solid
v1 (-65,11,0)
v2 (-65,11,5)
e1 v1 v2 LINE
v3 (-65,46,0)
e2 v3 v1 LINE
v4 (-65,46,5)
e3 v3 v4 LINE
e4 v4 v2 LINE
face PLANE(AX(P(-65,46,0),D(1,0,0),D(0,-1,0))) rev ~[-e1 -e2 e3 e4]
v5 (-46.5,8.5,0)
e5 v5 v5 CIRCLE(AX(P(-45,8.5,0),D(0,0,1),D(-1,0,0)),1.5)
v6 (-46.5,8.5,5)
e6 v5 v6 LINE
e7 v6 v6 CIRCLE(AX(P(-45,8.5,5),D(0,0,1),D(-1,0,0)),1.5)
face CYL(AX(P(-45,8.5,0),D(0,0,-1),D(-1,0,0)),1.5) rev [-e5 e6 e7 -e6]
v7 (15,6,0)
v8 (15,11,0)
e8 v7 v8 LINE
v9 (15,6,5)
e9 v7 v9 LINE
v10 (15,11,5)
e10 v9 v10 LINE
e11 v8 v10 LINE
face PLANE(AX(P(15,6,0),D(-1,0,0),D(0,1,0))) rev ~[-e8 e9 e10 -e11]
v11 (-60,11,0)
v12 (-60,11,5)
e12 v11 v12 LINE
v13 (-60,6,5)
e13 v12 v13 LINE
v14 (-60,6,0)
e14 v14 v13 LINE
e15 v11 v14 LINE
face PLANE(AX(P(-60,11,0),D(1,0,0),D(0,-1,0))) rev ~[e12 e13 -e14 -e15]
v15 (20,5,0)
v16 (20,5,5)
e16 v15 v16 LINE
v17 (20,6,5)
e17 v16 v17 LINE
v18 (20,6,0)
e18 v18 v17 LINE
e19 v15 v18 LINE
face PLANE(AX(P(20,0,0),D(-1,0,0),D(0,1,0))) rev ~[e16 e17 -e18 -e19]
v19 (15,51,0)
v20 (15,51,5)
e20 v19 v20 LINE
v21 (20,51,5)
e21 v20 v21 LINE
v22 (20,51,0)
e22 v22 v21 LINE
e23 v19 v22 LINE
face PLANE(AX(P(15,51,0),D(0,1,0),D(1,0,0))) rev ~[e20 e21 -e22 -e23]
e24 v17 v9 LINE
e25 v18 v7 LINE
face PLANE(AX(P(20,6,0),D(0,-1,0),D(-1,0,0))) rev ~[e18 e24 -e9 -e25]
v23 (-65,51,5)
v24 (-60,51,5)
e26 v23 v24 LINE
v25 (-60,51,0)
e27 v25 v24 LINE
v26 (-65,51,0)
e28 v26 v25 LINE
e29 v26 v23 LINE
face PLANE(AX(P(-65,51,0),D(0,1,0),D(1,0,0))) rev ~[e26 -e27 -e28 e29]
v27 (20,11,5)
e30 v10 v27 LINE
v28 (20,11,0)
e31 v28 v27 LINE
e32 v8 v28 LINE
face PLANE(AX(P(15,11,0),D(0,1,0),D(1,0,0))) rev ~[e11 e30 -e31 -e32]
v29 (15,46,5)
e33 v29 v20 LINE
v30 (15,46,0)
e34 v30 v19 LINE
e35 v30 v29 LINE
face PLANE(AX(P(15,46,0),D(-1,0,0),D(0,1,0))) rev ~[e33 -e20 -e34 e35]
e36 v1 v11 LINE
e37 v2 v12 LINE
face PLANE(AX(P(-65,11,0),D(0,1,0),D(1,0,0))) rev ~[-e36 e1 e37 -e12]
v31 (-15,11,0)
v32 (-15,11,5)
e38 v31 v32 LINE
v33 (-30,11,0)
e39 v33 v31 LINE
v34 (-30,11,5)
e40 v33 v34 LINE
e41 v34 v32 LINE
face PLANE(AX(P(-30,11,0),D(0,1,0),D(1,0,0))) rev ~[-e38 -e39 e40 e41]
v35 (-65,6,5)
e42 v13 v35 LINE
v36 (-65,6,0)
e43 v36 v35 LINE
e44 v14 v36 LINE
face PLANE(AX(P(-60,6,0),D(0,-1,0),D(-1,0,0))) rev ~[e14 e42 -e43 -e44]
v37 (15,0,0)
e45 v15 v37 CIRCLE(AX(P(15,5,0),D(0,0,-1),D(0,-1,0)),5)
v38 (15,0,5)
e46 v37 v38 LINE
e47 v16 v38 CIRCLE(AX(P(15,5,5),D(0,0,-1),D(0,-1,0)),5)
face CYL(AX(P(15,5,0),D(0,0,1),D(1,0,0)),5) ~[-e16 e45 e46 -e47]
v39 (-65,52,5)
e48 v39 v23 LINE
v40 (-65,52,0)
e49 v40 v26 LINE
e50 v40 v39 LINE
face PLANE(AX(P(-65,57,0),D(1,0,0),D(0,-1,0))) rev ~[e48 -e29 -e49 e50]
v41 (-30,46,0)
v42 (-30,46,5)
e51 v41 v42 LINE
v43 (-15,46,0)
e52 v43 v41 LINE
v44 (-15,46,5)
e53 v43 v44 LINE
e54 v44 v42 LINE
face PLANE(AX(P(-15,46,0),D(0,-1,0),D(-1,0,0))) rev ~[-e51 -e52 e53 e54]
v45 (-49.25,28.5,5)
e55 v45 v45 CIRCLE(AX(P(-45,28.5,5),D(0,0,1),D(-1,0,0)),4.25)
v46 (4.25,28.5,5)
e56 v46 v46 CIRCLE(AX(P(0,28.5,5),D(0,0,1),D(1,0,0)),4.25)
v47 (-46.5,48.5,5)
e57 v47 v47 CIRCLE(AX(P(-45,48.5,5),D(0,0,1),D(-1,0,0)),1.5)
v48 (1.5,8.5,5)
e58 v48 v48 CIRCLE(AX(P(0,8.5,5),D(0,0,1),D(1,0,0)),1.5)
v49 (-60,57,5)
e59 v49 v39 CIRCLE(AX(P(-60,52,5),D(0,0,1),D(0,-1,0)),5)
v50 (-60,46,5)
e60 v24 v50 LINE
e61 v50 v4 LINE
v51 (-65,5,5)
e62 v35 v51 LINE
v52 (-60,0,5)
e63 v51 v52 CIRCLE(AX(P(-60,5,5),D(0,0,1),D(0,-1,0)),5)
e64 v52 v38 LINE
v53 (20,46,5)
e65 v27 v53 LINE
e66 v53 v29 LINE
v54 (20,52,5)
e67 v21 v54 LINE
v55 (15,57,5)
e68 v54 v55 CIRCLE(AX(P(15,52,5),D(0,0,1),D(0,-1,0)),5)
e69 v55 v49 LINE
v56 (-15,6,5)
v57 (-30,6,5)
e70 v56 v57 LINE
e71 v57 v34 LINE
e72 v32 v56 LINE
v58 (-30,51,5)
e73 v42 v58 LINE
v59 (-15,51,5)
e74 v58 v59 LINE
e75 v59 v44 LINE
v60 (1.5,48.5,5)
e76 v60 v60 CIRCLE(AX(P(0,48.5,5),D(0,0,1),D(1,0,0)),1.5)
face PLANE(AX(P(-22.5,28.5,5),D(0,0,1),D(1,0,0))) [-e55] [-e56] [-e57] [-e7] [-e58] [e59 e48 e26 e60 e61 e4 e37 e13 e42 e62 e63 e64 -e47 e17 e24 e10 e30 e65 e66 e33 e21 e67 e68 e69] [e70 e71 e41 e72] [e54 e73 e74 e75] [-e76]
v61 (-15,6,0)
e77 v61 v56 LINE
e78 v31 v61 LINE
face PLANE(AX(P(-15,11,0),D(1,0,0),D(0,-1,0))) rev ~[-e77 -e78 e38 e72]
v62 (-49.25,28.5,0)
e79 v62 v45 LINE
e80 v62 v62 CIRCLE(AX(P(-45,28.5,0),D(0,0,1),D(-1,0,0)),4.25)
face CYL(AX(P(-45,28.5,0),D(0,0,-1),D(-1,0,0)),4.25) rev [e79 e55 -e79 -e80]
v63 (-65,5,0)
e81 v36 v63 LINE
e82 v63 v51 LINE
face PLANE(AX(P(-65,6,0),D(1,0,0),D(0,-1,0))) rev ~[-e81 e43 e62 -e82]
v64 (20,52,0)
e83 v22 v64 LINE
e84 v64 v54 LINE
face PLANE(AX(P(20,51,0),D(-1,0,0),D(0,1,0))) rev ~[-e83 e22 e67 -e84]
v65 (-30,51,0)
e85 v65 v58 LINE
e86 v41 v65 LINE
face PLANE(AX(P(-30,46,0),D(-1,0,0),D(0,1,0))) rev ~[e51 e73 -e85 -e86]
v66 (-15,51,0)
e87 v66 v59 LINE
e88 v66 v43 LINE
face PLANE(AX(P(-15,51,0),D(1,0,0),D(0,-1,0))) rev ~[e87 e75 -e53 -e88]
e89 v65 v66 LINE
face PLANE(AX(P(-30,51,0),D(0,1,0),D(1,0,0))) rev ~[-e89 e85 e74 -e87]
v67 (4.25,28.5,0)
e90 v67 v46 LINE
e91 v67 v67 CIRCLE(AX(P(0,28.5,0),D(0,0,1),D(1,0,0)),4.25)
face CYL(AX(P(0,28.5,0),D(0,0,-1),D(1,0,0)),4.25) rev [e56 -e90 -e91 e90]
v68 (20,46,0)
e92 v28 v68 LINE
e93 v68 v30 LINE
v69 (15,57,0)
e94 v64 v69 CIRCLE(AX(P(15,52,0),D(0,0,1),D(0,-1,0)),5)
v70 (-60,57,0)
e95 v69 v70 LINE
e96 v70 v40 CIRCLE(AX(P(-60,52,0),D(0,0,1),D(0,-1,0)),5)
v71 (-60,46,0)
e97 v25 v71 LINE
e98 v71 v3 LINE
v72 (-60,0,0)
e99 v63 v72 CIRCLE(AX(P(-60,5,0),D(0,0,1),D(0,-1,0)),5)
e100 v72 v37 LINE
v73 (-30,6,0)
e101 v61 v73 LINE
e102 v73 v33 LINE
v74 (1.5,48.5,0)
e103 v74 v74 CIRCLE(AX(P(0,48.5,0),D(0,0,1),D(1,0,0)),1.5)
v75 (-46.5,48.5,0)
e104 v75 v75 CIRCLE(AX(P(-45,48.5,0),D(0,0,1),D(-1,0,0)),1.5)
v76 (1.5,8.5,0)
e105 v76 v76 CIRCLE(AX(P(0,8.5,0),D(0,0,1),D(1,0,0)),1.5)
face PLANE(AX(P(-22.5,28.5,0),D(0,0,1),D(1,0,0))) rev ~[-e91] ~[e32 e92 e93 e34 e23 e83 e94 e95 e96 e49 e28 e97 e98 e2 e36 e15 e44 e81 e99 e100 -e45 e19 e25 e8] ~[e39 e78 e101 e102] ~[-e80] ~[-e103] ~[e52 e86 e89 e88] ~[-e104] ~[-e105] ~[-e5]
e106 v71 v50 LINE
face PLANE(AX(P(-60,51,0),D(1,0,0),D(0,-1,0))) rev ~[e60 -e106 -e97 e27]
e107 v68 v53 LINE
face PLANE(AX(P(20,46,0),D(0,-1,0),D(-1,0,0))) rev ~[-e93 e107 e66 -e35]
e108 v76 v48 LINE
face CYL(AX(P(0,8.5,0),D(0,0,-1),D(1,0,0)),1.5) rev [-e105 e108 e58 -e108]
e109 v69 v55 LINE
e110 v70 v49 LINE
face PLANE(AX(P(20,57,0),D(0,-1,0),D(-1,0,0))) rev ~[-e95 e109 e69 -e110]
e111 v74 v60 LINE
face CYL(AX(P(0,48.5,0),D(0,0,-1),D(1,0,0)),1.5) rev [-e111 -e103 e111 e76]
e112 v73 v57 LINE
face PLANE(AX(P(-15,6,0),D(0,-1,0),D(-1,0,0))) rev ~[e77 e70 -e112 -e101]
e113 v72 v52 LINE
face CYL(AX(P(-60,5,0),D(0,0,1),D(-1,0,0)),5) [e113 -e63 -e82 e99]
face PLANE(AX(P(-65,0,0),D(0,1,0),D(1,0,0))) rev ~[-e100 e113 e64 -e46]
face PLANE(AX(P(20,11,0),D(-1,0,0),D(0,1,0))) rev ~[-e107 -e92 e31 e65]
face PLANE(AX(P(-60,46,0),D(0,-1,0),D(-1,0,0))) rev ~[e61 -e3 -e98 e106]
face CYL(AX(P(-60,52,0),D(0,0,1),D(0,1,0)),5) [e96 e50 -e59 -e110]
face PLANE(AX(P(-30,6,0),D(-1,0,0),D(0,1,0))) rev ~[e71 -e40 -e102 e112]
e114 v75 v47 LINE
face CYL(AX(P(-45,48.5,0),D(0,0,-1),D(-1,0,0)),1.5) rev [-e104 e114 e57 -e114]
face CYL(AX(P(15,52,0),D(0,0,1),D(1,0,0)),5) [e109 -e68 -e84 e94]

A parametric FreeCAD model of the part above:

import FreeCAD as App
import Part
import Sketcher
from FreeCAD import Vector
Q = App.Units.Quantity


def edges_at(feature, points):
    """Names of the edges that pass closest to the given points."""
    edges = feature.Shape.Edges
    near = lambda p: min(range(len(edges)), key=lambda i: edges[i].distToShape(Part.Vertex(*p))[0])
    return sorted({f"Edge{near(p) + 1}" for p in points})


def add_polygon(sketch, points):
    """Adds a closed chain of lines whose ends are joined by coincident constraints."""
    first, n = sketch.GeometryCount, len(points)
    for a, b in zip(points, points[1:] + points[:1]):
        sketch.addGeometry(Part.LineSegment(App.Vector(*a, 0), App.Vector(*b, 0)), False)
    for i in range(n):
        sketch.addConstraint(Sketcher.Constraint("Coincident", first + i, 2, first + (i + 1) % n, 1))

doc = App.newDocument("Part")
body = doc.addObject("PartDesign::Body", "Body")

sketch1 = body.newObject("Sketcher::SketchObject", "Sketch")
sketch1.AttachmentSupport = (doc.getObject("XY_Plane"), [""])
sketch1.MapMode = "FlatFace"
add_polygon(sketch1, [(20, 0), (20, 6), (15, 6), (15, 11), (20, 11), (20, 46), (15, 46), (15, 51), (20, 51), (20, 57), (-65, 57), (-65, 51), (-60, 51), (-60, 46), (-65, 46), (-65, 11), (-60, 11), (-60, 6), (-65, 6), (-65, 0)])
sketch1.addGeometry(Part.Circle(Vector(-45, 8.5, 0), Vector(0, 0, 1), 1.5), False)
add_polygon(sketch1, [(-30, 11), (-15, 11), (-15, 6), (-30, 6)])
sketch1.addGeometry(Part.Circle(Vector(0, 8.5, 0), Vector(0, 0, 1), 1.5), False)
sketch1.addGeometry(Part.Circle(Vector(-45, 28.5, 0), Vector(0, 0, 1), 4.2), False)
sketch1.addGeometry(Part.Circle(Vector(-45, 48.5, 0), Vector(0, 0, 1), 1.5), False)
add_polygon(sketch1, [(-30, 51), (-15, 51), (-15, 46), (-30, 46)])
sketch1.addGeometry(Part.Circle(Vector(0, 28.5, 0), Vector(0, 0, 1), 4.2), False)
sketch1.addGeometry(Part.Circle(Vector(0, 48.5, 0), Vector(0, 0, 1), 1.5), False)
sketch1.addConstraint([
    Sketcher.Constraint("Vertical", 0),
    Sketcher.Constraint("Horizontal", 1),
    Sketcher.Constraint("Vertical", 2),
    Sketcher.Constraint("Horizontal", 3),
    Sketcher.Constraint("Vertical", 4),
    Sketcher.Constraint("Horizontal", 5),
    Sketcher.Constraint("Vertical", 6),
    Sketcher.Constraint("Horizontal", 7),
    Sketcher.Constraint("Vertical", 8),
    Sketcher.Constraint("Horizontal", 9),
    Sketcher.Constraint("Vertical", 10),
    Sketcher.Constraint("Horizontal", 11),
    Sketcher.Constraint("Vertical", 12),
    Sketcher.Constraint("Horizontal", 13),
    Sketcher.Constraint("Vertical", 14),
    Sketcher.Constraint("Horizontal", 15),
    Sketcher.Constraint("Vertical", 16),
    Sketcher.Constraint("Horizontal", 17),
    Sketcher.Constraint("Vertical", 18),
    Sketcher.Constraint("Horizontal", 19),
    Sketcher.Constraint("Horizontal", 21),
    Sketcher.Constraint("Vertical", 22),
    Sketcher.Constraint("Horizontal", 23),
    Sketcher.Constraint("Vertical", 24),
    Sketcher.Constraint("Horizontal", 28),
    Sketcher.Constraint("Vertical", 29),
    Sketcher.Constraint("Horizontal", 30),
    Sketcher.Constraint("Vertical", 31),
    Sketcher.Constraint("Equal", 20, 25),
    Sketcher.Constraint("Equal", 25, 27),
    Sketcher.Constraint("Equal", 26, 32),
    Sketcher.Constraint("Equal", 27, 33),
    Sketcher.Constraint("Symmetric", 2, 2, 21, 2, -2),
    Sketcher.Constraint("Symmetric", 6, 2, 28, 2, -2),
    Sketcher.Constraint("PointOnObject", 25, 3, -2),
    Sketcher.Constraint("PointOnObject", 32, 3, -2),
    Sketcher.Constraint("PointOnObject", 33, 3, -2),
    Sketcher.Constraint("PointOnObject", 18, 2, -1),
    Sketcher.Constraint("Horizontal", 20, 3, 25, 3),
    Sketcher.Constraint("Horizontal", 26, 3, 32, 3),
    Sketcher.Constraint("Horizontal", 27, 3, 33, 3),
    Sketcher.Constraint("Horizontal", 7, 2, 10, 2),
    Sketcher.Constraint("Horizontal", 5, 2, 12, 2),
    Sketcher.Constraint("Horizontal", 3, 2, 14, 2),
    Sketcher.Constraint("Horizontal", 1, 2, 16, 2),
    Sketcher.Constraint("Horizontal", 17, 2, 22, 2),
    Sketcher.Constraint("Horizontal", 13, 2, 29, 2),
    Sketcher.Constraint("Vertical", 20, 3, 26, 3),
    Sketcher.Constraint("Vertical", 26, 3, 27, 3),
    Sketcher.Constraint("Vertical", 0, 2, 3, 2),
    Sketcher.Constraint("Vertical", 2, 2, 5, 2),
    Sketcher.Constraint("Vertical", 4, 2, 7, 2),
    Sketcher.Constraint("Vertical", 10, 2, 13, 2),
    Sketcher.Constraint("Vertical", 12, 2, 15, 2),
    Sketcher.Constraint("Vertical", 14, 2, 17, 2),
    Sketcher.Constraint("Vertical", 24, 2, 30, 2),
    Sketcher.Constraint("Equal", 7, 11),
    Sketcher.Constraint("Equal", 17, 2),
    Sketcher.Constraint("Equal", 2, 6),
    Sketcher.Constraint("Equal", 0, 8),
    Sketcher.Constraint("Diameter", 20, Q("3 mm")),
    Sketcher.Constraint("Diameter", 26, Q("8.5 mm")),
    Sketcher.Constraint("DistanceX", 1, 2, 1, 1, Q("5 mm")),
    Sketcher.Constraint("DistanceX", 9, 2, 9, 1, Q("85 mm")),
    Sketcher.Constraint("DistanceX", 21, 1, 21, 2, Q("15 mm")),
    Sketcher.Constraint("DistanceY", 0, 1, 0, 2, Q("6 mm")),
    Sketcher.Constraint("DistanceY", 4, 1, 4, 2, Q("35 mm")),
    Sketcher.Constraint("DistanceX", 20, 3, -1, 1, Q("45 mm")),
    Sketcher.Constraint("DistanceX", -1, 1, 0, 2, Q("20 mm")),
    Sketcher.Constraint("DistanceY", 20, 3, 26, 3, Q("20 mm")),
    Sketcher.Constraint("DistanceY", 26, 3, 27, 3, Q("20 mm")),
    Sketcher.Constraint("DistanceY", -1, 1, 20, 3, Q("8.5 mm")),
])
pad1 = body.newObject("PartDesign::Pad", "Pad")
pad1.Profile = sketch1
pad1.Length = 5
doc.recompute()

fillet = body.newObject("PartDesign::Fillet", "Fillet")
fillet.Base = (pad1, edges_at(pad1, [
    (-65, 0, 2.5),
    (-65, 57, 2.5),
    (20, 57, 2.5),
    (20, 0, 2.5),
]))
fillet.Radius = 5

doc.recompute()
